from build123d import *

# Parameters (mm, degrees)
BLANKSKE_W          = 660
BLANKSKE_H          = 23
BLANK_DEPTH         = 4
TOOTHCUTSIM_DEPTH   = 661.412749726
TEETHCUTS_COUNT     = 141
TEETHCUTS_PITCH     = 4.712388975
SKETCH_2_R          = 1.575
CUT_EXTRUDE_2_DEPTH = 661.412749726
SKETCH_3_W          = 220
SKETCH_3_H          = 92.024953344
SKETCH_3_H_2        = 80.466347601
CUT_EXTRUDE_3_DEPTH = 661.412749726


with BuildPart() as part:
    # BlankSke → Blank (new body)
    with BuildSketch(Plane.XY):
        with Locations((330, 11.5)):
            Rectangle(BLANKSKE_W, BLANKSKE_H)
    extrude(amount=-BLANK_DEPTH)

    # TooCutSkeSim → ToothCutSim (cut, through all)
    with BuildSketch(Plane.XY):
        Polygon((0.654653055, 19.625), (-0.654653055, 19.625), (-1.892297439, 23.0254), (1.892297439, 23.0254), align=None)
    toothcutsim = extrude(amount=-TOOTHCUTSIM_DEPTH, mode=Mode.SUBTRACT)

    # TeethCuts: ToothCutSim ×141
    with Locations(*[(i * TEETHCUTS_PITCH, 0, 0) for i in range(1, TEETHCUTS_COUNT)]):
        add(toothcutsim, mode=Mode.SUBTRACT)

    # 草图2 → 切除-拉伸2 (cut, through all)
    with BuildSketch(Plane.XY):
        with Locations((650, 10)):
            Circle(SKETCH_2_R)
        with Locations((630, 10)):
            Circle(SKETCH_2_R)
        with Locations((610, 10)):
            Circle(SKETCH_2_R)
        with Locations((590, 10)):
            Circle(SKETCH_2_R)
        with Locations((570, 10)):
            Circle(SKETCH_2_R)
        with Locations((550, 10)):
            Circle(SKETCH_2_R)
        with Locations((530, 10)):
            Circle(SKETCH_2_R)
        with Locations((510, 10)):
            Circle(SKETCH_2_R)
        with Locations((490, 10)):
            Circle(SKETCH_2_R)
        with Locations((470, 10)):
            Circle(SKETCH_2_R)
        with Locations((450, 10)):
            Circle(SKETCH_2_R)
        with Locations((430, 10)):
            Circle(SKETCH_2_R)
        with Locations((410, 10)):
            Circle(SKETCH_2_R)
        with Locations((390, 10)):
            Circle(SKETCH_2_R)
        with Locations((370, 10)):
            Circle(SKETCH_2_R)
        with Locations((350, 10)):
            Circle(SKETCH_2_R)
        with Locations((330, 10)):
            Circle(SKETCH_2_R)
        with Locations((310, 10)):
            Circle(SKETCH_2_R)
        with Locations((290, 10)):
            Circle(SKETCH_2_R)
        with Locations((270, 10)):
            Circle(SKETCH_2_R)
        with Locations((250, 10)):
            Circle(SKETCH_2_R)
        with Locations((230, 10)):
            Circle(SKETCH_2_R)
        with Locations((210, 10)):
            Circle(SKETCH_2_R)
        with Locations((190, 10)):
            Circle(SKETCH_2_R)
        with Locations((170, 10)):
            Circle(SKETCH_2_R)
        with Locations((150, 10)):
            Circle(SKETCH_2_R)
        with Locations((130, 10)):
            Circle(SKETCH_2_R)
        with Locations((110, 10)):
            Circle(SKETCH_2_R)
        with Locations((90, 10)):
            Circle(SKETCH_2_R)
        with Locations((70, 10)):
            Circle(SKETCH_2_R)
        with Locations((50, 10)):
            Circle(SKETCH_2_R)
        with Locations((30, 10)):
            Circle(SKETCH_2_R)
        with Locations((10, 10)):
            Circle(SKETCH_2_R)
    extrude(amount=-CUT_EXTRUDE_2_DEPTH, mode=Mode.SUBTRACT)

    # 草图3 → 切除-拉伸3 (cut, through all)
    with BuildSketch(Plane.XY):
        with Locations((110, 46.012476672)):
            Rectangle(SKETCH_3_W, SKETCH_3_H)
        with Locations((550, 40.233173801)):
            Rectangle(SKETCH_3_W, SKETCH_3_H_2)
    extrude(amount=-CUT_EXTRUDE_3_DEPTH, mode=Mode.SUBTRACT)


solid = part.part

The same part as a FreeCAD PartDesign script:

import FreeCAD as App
import Part
import Sketcher
Q = App.Units.Quantity


def add_polygon(sketch, points):
    """Adds a closed chain of lines whose ends are joined by coincident constraints."""
    first, n = sketch.GeometryCount, len(points)
    for a, b in zip(points, points[1:] + points[:1]):
        sketch.addGeometry(Part.LineSegment(App.Vector(*a, 0), App.Vector(*b, 0)), False)
    for i in range(n):
        sketch.addConstraint(Sketcher.Constraint("Coincident", first + i, 2, first + (i + 1) % n, 1))

doc = App.newDocument("Part")
body = doc.addObject("PartDesign::Body", "Body")

# Sketch on XY plane
sketch1 = doc.addObject("Sketcher::SketchObject", "Sketch")
body.addObject(sketch1)
sketch1.AttachmentSupport = (doc.XY_Plane, [""])
sketch1.MapMode = "FlatFace"
add_polygon(sketch1, [(0, 23), (0, 0), (660, 0), (660, 23)])  # lines 0-3
sketch1.addConstraint(Sketcher.Constraint("Vertical", 0))
sketch1.addConstraint(Sketcher.Constraint("Horizontal", 1))
sketch1.addConstraint(Sketcher.Constraint("Vertical", 2))
sketch1.addConstraint(Sketcher.Constraint("Horizontal", 3))
sketch1.addConstraint(Sketcher.Constraint("Coincident", 0, 2, -1, 1))
sketch1.addConstraint(Sketcher.Constraint("DistanceX", 1, 1, 1, 2, 660.0))
sketch1.addConstraint(Sketcher.Constraint("DistanceY", 0, 2, 0, 1, 23.0))
pad1 = doc.addObject("PartDesign::Pad", "Pad")
body.addObject(pad1)
pad1.Profile = sketch1
pad1.Length = 4
pad1.Reversed = True

# Sketch on XY plane
sketch2 = doc.addObject("Sketcher::SketchObject", "Sketch001")
body.addObject(sketch2)
sketch2.AttachmentSupport = (doc.XY_Plane, [""])
sketch2.MapMode = "FlatFace"
add_polygon(sketch2, [(-0.7, 19.6), (0.7, 19.6), (1.9, 23), (-1.9, 23)])  # lines 0-3
sketch2.addConstraint(Sketcher.Constraint("Horizontal", 0))
sketch2.addConstraint(Sketcher.Constraint("Horizontal", 2))
sketch2.addConstraint(Sketcher.Constraint("Equal", 1, 3))
sketch2.addConstraint(Sketcher.Constraint("Angle", 1, Q("70 deg")))
sketch2.addConstraint(Sketcher.Constraint("DistanceY", -1, 1, 0, 2, 19.625))
sketch2.addConstraint(Sketcher.Constraint("DistanceY", -1, 1, 1, 2, 23.0254))
sketch2.addConstraint(Sketcher.Constraint("DistanceX", 0, 1, 0, 2, 1.309306))
sketch2.addConstraint(Sketcher.Constraint("DistanceX", -1, 1, 0, 2, 0.654653))
pocket1 = doc.addObject("PartDesign::Pocket", "Pocket")
body.addObject(pocket1)
pocket1.Profile = sketch2
pocket1.Type = "ThroughAll"
doc.recompute()

linearpattern = doc.addObject("PartDesign::LinearPattern", "LinearPattern")
body.addObject(linearpattern)
linearpattern.Originals = [pocket1]
linearpattern.Direction = (doc.X_Axis, [""])
linearpattern.Mode = "offset"
linearpattern.Offset = 4.712389
linearpattern.Occurrences = 141
body.Tip = linearpattern

# Sketch on XY plane
sketch3 = doc.addObject("Sketcher::SketchObject", "Sketch002")
body.addObject(sketch3)
sketch3.AttachmentSupport = (doc.XY_Plane, [""])
sketch3.MapMode = "FlatFace"
sketch3.addGeometry(Part.Circle(App.Vector(650, 10, 0), App.Vector(0, 0, 1), 1.6), False)
sketch3.addGeometry(Part.Circle(App.Vector(630, 10, 0), App.Vector(0, 0, 1), 1.6), False)
sketch3.addGeometry(Part.Circle(App.Vector(610, 10, 0), App.Vector(0, 0, 1), 1.6), False)
sketch3.addGeometry(Part.Circle(App.Vector(590, 10, 0), App.Vector(0, 0, 1), 1.6), False)
sketch3.addGeometry(Part.Circle(App.Vector(570, 10, 0), App.Vector(0, 0, 1), 1.6), False)
sketch3.addGeometry(Part.Circle(App.Vector(550, 10, 0), App.Vector(0, 0, 1), 1.6), False)
sketch3.addGeometry(Part.Circle(App.Vector(530, 10, 0), App.Vector(0, 0, 1), 1.6), False)
sketch3.addGeometry(Part.Circle(App.Vector(510, 10, 0), App.Vector(0, 0, 1), 1.6), False)
sketch3.addGeometry(Part.Circle(App.Vector(490, 10, 0), App.Vector(0, 0, 1), 1.6), False)
sketch3.addGeometry(Part.Circle(App.Vector(470, 10, 0), App.Vector(0, 0, 1), 1.6), False)
sketch3.addGeometry(Part.Circle(App.Vector(450, 10, 0), App.Vector(0, 0, 1), 1.6), False)
sketch3.addGeometry(Part.Circle(App.Vector(430, 10, 0), App.Vector(0, 0, 1), 1.6), False)
sketch3.addGeometry(Part.Circle(App.Vector(410, 10, 0), App.Vector(0, 0, 1), 1.6), False)
sketch3.addGeometry(Part.Circle(App.Vector(390, 10, 0), App.Vector(0, 0, 1), 1.6), False)
sketch3.addGeometry(Part.Circle(App.Vector(370, 10, 0), App.Vector(0, 0, 1), 1.6), False)
sketch3.addGeometry(Part.Circle(App.Vector(350, 10, 0), App.Vector(0, 0, 1), 1.6), False)
sketch3.addGeometry(Part.Circle(App.Vector(330, 10, 0), App.Vector(0, 0, 1), 1.6), False)
sketch3.addGeometry(Part.Circle(App.Vector(310, 10, 0), App.Vector(0, 0, 1), 1.6), False)
sketch3.addGeometry(Part.Circle(App.Vector(290, 10, 0), App.Vector(0, 0, 1), 1.6), False)
sketch3.addGeometry(Part.Circle(App.Vector(270, 10, 0), App.Vector(0, 0, 1), 1.6), False)
sketch3.addGeometry(Part.Circle(App.Vector(250, 10, 0), App.Vector(0, 0, 1), 1.6), False)
sketch3.addGeometry(Part.Circle(App.Vector(230, 10, 0), App.Vector(0, 0, 1), 1.6), False)
sketch3.addGeometry(Part.Circle(App.Vector(210, 10, 0), App.Vector(0, 0, 1), 1.6), False)
sketch3.addGeometry(Part.Circle(App.Vector(190, 10, 0), App.Vector(0, 0, 1), 1.6), False)
sketch3.addGeometry(Part.Circle(App.Vector(170, 10, 0), App.Vector(0, 0, 1), 1.6), False)
sketch3.addGeometry(Part.Circle(App.Vector(150, 10, 0), App.Vector(0, 0, 1), 1.6), False)
sketch3.addGeometry(Part.Circle(App.Vector(130, 10, 0), App.Vector(0, 0, 1), 1.6), False)
sketch3.addGeometry(Part.Circle(App.Vector(110, 10, 0), App.Vector(0, 0, 1), 1.6), False)
sketch3.addGeometry(Part.Circle(App.Vector(90, 10, 0), App.Vector(0, 0, 1), 1.6), False)
sketch3.addGeometry(Part.Circle(App.Vector(70, 10, 0), App.Vector(0, 0, 1), 1.6), False)
sketch3.addGeometry(Part.Circle(App.Vector(50, 10, 0), App.Vector(0, 0, 1), 1.6), False)
sketch3.addGeometry(Part.Circle(App.Vector(30, 10, 0), App.Vector(0, 0, 1), 1.6), False)
sketch3.addGeometry(Part.Circle(App.Vector(10, 10, 0), App.Vector(0, 0, 1), 1.6), False)
sketch3.addConstraint(Sketcher.Constraint("Equal", 0, 1))
sketch3.addConstraint(Sketcher.Constraint("Equal", 1, 2))
sketch3.addConstraint(Sketcher.Constraint("Equal", 2, 3))
sketch3.addConstraint(Sketcher.Constraint("Equal", 3, 4))
sketch3.addConstraint(Sketcher.Constraint("Equal", 4, 5))
sketch3.addConstraint(Sketcher.Constraint("Equal", 5, 6))
sketch3.addConstraint(Sketcher.Constraint("Equal", 6, 7))
sketch3.addConstraint(Sketcher.Constraint("Equal", 7, 8))
sketch3.addConstraint(Sketcher.Constraint("Equal", 8, 9))
sketch3.addConstraint(Sketcher.Constraint("Equal", 9, 10))
sketch3.addConstraint(Sketcher.Constraint("Equal", 10, 11))
sketch3.addConstraint(Sketcher.Constraint("Equal", 11, 12))
sketch3.addConstraint(Sketcher.Constraint("Equal", 12, 13))
sketch3.addConstraint(Sketcher.Constraint("Equal", 13, 14))
sketch3.addConstraint(Sketcher.Constraint("Equal", 14, 15))
sketch3.addConstraint(Sketcher.Constraint("Equal", 15, 16))
sketch3.addConstraint(Sketcher.Constraint("Equal", 16, 17))
sketch3.addConstraint(Sketcher.Constraint("Equal", 17, 18))
sketch3.addConstraint(Sketcher.Constraint("Equal", 18, 19))
sketch3.addConstraint(Sketcher.Constraint("Equal", 19, 20))
sketch3.addConstraint(Sketcher.Constraint("Equal", 20, 21))
sketch3.addConstraint(Sketcher.Constraint("Equal", 21, 22))
sketch3.addConstraint(Sketcher.Constraint("Equal", 22, 23))
sketch3.addConstraint(Sketcher.Constraint("Equal", 23, 24))
sketch3.addConstraint(Sketcher.Constraint("Equal", 24, 25))
sketch3.addConstraint(Sketcher.Constraint("Equal", 25, 26))
sketch3.addConstraint(Sketcher.Constraint("Equal", 26, 27))
sketch3.addConstraint(Sketcher.Constraint("Equal", 27, 28))
sketch3.addConstraint(Sketcher.Constraint("Equal", 28, 29))
sketch3.addConstraint(Sketcher.Constraint("Equal", 29, 30))
sketch3.addConstraint(Sketcher.Constraint("Equal", 30, 31))
sketch3.addConstraint(Sketcher.Constraint("Equal", 31, 32))
sketch3.addConstraint(Sketcher.Constraint("Horizontal", 0, 3, 1, 3))
sketch3.addConstraint(Sketcher.Constraint("Horizontal", 1, 3, 2, 3))
sketch3.addConstraint(Sketcher.Constraint("Horizontal", 2, 3, 3, 3))
sketch3.addConstraint(Sketcher.Constraint("Horizontal", 3, 3, 4, 3))
sketch3.addConstraint(Sketcher.Constraint("Horizontal", 4, 3, 5, 3))
sketch3.addConstraint(Sketcher.Constraint("Horizontal", 5, 3, 6, 3))
sketch3.addConstraint(Sketcher.Constraint("Horizontal", 6, 3, 7, 3))
sketch3.addConstraint(Sketcher.Constraint("Horizontal", 7, 3, 8, 3))
sketch3.addConstraint(Sketcher.Constraint("Horizontal", 8, 3, 9, 3))
sketch3.addConstraint(Sketcher.Constraint("Horizontal", 9, 3, 10, 3))
sketch3.addConstraint(Sketcher.Constraint("Horizontal", 10, 3, 11, 3))
sketch3.addConstraint(Sketcher.Constraint("Horizontal", 11, 3, 12, 3))
sketch3.addConstraint(Sketcher.Constraint("Horizontal", 12, 3, 13, 3))
sketch3.addConstraint(Sketcher.Constraint("Horizontal", 13, 3, 14, 3))
sketch3.addConstraint(Sketcher.Constraint("Horizontal", 14, 3, 15, 3))
sketch3.addConstraint(Sketcher.Constraint("Horizontal", 15, 3, 16, 3))
sketch3.addConstraint(Sketcher.Constraint("Horizontal", 16, 3, 17, 3))
sketch3.addConstraint(Sketcher.Constraint("Horizontal", 17, 3, 18, 3))
sketch3.addConstraint(Sketcher.Constraint("Horizontal", 18, 3, 19, 3))
sketch3.addConstraint(Sketcher.Constraint("Horizontal", 19, 3, 20, 3))
sketch3.addConstraint(Sketcher.Constraint("Horizontal", 20, 3, 21, 3))
sketch3.addConstraint(Sketcher.Constraint("Horizontal", 21, 3, 22, 3))
sketch3.addConstraint(Sketcher.Constraint("Horizontal", 22, 3, 23, 3))
sketch3.addConstraint(Sketcher.Constraint("Horizontal", 23, 3, 24, 3))
sketch3.addConstraint(Sketcher.Constraint("Horizontal", 24, 3, 25, 3))
sketch3.addConstraint(Sketcher.Constraint("Horizontal", 25, 3, 26, 3))
sketch3.addConstraint(Sketcher.Constraint("Horizontal", 26, 3, 27, 3))
sketch3.addConstraint(Sketcher.Constraint("Horizontal", 27, 3, 28, 3))
sketch3.addConstraint(Sketcher.Constraint("Horizontal", 28, 3, 29, 3))
sketch3.addConstraint(Sketcher.Constraint("Horizontal", 29, 3, 30, 3))
sketch3.addConstraint(Sketcher.Constraint("Horizontal", 30, 3, 31, 3))
sketch3.addConstraint(Sketcher.Constraint("Horizontal", 31, 3, 32, 3))
sketch3.addConstraint(Sketcher.Constraint("Diameter", 0, 3.15))
sketch3.addConstraint(Sketcher.Constraint("DistanceX", -1, 1, 0, 3, 650.0))
sketch3.addConstraint(Sketcher.Constraint("DistanceY", -1, 1, 0, 3, 10.0))
sketch3.addConstraint(Sketcher.Constraint("DistanceX", -1, 1, 1, 3, 630.0))
sketch3.addConstraint(Sketcher.Constraint("DistanceX", -1, 1, 2, 3, 610.0))
sketch3.addConstraint(Sketcher.Constraint("DistanceX", -1, 1, 3, 3, 590.0))
sketch3.addConstraint(Sketcher.Constraint("DistanceX", -1, 1, 4, 3, 570.0))
sketch3.addConstraint(Sketcher.Constraint("DistanceX", -1, 1, 5, 3, 550.0))
sketch3.addConstraint(Sketcher.Constraint("DistanceX", -1, 1, 6, 3, 530.0))
sketch3.addConstraint(Sketcher.Constraint("DistanceX", -1, 1, 7, 3, 510.0))
sketch3.addConstraint(Sketcher.Constraint("DistanceX", -1, 1, 8, 3, 490.0))
sketch3.addConstraint(Sketcher.Constraint("DistanceX", -1, 1, 9, 3, 470.0))
sketch3.addConstraint(Sketcher.Constraint("DistanceX", -1, 1, 10, 3, 450.0))
sketch3.addConstraint(Sketcher.Constraint("DistanceX", -1, 1, 11, 3, 430.0))
sketch3.addConstraint(Sketcher.Constraint("DistanceX", -1, 1, 12, 3, 410.0))
sketch3.addConstraint(Sketcher.Constraint("DistanceX", -1, 1, 13, 3, 390.0))
sketch3.addConstraint(Sketcher.Constraint("DistanceX", -1, 1, 14, 3, 370.0))
sketch3.addConstraint(Sketcher.Constraint("DistanceX", -1, 1, 15, 3, 350.0))
sketch3.addConstraint(Sketcher.Constraint("DistanceX", -1, 1, 16, 3, 330.0))
sketch3.addConstraint(Sketcher.Constraint("DistanceX", -1, 1, 17, 3, 310.0))
sketch3.addConstraint(Sketcher.Constraint("DistanceX", -1, 1, 18, 3, 290.0))
sketch3.addConstraint(Sketcher.Constraint("DistanceX", -1, 1, 19, 3, 270.0))
sketch3.addConstraint(Sketcher.Constraint("DistanceX", -1, 1, 20, 3, 250.0))
sketch3.addConstraint(Sketcher.Constraint("DistanceX", -1, 1, 21, 3, 230.0))
sketch3.addConstraint(Sketcher.Constraint("DistanceX", -1, 1, 22, 3, 210.0))
sketch3.addConstraint(Sketcher.Constraint("DistanceX", -1, 1, 23, 3, 190.0))
sketch3.addConstraint(Sketcher.Constraint("DistanceX", -1, 1, 24, 3, 170.0))
sketch3.addConstraint(Sketcher.Constraint("DistanceX", -1, 1, 25, 3, 150.0))
sketch3.addConstraint(Sketcher.Constraint("DistanceX", -1, 1, 26, 3, 130.0))
sketch3.addConstraint(Sketcher.Constraint("DistanceX", -1, 1, 27, 3, 110.0))
sketch3.addConstraint(Sketcher.Constraint("DistanceX", -1, 1, 28, 3, 90.0))
sketch3.addConstraint(Sketcher.Constraint("DistanceX", -1, 1, 29, 3, 70.0))
sketch3.addConstraint(Sketcher.Constraint("DistanceX", -1, 1, 30, 3, 50.0))
sketch3.addConstraint(Sketcher.Constraint("DistanceX", -1, 1, 31, 3, 30.0))
sketch3.addConstraint(Sketcher.Constraint("DistanceX", -1, 1, 32, 3, 10.0))
pocket2 = doc.addObject("PartDesign::Pocket", "Pocket001")
body.addObject(pocket2)
pocket2.Profile = sketch3
pocket2.Type = "ThroughAll"

# Sketch on XY plane
sketch4 = doc.addObject("Sketcher::SketchObject", "Sketch003")
body.addObject(sketch4)
sketch4.AttachmentSupport = (doc.XY_Plane, [""])
sketch4.MapMode = "FlatFace"
add_polygon(sketch4, [(0, 92), (0, 0), (220, 0), (220, 92)])  # lines 0-3
add_polygon(sketch4, [(440, 80), (440, 0), (660, 0), (660, 80)])  # lines 4-7
sketch4.addConstraint(Sketcher.Constraint("Vertical", 0))
sketch4.addConstraint(Sketcher.Constraint("Horizontal", 1))
sketch4.addConstraint(Sketcher.Constraint("Vertical", 2))
sketch4.addConstraint(Sketcher.Constraint("Horizontal", 3))
sketch4.addConstraint(Sketcher.Constraint("Vertical", 4))
sketch4.addConstraint(Sketcher.Constraint("Horizontal", 5))
sketch4.addConstraint(Sketcher.Constraint("Vertical", 6))
sketch4.addConstraint(Sketcher.Constraint("Horizontal", 7))
sketch4.addConstraint(Sketcher.Constraint("Coincident", 0, 2, -1, 1))
sketch4.addConstraint(Sketcher.Constraint("PointOnObject", 4, 2, -1))
sketch4.addConstraint(Sketcher.Constraint("Equal", 3, 5))
sketch4.addConstraint(Sketcher.Constraint("DistanceX", 1, 1, 1, 2, 220.0))
sketch4.addConstraint(Sketcher.Constraint("DistanceX", -1, 1, 4, 2, 440.0))
sketch4.addConstraint(Sketcher.Constraint("DistanceY", 0, 2, 0, 1, 92.024953))
sketch4.addConstraint(Sketcher.Constraint("DistanceY", 4, 2, 4, 1, 80.466348))
pocket3 = doc.addObject("PartDesign::Pocket", "Pocket002")
body.addObject(pocket3)
pocket3.Profile = sketch4
pocket3.Type = "ThroughAll"

doc.recompute()
